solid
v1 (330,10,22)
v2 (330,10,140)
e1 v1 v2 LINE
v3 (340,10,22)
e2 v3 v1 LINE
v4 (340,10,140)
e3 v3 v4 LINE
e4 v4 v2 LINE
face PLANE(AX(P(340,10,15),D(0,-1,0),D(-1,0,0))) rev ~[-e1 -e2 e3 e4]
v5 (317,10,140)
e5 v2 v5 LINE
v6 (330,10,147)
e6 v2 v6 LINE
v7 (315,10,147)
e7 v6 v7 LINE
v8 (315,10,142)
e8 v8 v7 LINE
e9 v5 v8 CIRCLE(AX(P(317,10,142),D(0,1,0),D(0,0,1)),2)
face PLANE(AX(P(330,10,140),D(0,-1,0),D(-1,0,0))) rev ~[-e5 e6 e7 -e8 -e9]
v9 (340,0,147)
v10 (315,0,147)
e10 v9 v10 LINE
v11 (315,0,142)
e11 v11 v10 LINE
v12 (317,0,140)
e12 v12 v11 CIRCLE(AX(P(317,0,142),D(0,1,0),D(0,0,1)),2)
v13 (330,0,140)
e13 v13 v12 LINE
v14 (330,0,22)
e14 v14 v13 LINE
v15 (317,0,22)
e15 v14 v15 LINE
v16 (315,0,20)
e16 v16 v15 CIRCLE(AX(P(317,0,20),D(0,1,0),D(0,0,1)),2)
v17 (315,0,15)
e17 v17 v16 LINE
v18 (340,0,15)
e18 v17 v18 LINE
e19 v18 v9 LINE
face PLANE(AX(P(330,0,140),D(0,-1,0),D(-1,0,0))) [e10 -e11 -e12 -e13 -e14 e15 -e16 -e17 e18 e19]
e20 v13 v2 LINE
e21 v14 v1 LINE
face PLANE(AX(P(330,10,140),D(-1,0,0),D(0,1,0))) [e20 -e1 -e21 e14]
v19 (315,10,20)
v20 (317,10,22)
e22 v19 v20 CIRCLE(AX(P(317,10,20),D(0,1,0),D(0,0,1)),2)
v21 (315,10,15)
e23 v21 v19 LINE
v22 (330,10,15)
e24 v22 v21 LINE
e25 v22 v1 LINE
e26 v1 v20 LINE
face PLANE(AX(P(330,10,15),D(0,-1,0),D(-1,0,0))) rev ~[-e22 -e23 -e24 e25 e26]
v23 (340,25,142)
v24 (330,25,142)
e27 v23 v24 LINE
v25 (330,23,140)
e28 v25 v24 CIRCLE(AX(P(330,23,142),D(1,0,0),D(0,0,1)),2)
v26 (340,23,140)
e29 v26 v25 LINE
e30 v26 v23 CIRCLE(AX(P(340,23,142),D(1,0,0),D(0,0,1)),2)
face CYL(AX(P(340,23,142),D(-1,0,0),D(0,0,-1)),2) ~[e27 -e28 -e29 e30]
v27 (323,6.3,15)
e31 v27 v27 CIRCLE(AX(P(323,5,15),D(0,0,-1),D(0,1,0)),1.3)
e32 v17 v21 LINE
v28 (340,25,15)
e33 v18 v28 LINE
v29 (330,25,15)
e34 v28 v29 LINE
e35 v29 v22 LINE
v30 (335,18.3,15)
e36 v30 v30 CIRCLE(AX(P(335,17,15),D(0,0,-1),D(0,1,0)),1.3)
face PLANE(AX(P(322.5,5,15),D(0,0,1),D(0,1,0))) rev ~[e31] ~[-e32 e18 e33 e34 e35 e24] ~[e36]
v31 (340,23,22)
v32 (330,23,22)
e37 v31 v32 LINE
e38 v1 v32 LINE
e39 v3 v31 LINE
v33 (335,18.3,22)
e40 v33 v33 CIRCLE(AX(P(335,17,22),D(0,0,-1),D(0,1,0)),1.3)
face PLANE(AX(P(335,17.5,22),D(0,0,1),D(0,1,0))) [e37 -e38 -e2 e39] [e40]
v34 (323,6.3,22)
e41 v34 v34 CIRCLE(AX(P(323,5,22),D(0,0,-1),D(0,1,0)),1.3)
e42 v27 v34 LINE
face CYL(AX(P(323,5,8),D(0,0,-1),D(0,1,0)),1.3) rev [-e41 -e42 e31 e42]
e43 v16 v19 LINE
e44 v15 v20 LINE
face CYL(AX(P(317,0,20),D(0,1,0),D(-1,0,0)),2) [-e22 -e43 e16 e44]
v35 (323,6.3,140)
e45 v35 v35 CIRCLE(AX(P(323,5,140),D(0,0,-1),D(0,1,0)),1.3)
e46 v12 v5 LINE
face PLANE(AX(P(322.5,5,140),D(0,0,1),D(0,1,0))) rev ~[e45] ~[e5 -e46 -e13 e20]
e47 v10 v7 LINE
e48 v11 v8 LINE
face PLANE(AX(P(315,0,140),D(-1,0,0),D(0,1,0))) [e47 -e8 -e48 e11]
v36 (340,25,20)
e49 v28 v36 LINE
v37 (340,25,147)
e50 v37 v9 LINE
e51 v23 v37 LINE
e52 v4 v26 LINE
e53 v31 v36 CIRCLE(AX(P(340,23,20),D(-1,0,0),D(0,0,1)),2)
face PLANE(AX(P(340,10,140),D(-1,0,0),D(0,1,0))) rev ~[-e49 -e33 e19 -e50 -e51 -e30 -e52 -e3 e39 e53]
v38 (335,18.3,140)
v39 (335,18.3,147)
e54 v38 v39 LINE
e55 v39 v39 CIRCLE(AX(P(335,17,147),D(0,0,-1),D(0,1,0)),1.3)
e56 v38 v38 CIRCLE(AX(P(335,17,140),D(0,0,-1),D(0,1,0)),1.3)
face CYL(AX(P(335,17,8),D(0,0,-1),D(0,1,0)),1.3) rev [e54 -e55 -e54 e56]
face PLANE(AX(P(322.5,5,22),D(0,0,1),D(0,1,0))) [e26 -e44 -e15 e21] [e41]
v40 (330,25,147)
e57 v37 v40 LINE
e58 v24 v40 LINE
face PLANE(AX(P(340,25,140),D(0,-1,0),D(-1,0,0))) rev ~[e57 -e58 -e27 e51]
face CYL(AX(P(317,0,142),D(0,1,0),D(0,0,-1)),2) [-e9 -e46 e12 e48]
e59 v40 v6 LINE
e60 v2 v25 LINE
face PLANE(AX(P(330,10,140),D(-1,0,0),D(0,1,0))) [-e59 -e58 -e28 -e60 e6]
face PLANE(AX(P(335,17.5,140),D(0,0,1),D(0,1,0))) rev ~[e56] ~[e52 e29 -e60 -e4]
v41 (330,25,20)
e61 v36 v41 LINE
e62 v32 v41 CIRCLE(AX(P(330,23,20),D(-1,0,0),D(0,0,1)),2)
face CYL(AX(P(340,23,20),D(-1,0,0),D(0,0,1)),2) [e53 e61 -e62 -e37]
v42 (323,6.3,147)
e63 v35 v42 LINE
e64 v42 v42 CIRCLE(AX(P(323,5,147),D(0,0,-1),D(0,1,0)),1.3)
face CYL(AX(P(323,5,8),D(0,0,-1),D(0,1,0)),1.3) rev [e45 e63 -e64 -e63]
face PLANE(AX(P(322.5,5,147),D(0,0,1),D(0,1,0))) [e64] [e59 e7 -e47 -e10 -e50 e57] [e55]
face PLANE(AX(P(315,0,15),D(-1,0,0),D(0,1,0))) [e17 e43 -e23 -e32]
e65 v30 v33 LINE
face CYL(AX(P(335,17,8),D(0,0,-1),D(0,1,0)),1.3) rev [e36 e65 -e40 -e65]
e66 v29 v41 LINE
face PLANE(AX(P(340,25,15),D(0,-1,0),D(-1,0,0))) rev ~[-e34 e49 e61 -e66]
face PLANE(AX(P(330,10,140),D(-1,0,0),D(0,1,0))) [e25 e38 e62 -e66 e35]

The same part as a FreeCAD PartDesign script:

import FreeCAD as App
import Part
import Sketcher
Q = App.Units.Quantity


def edges_at(feature, points):
    """Names of the edges that pass closest to the given points."""
    edges = feature.Shape.Edges
    near = lambda p: min(range(len(edges)), key=lambda i: edges[i].distToShape(Part.Vertex(*p))[0])
    return sorted({f"Edge{near(p) + 1}" for p in points})

doc = App.newDocument("Part")
body = doc.addObject("PartDesign::Body", "Body")

sketch1 = body.newObject("Sketcher::SketchObject", "Sketch")
sketch1.AttachmentSupport = (doc.getObject("XY_Plane"), [""])
sketch1.MapMode = "FlatFace"
sketch1.AttachmentOffset = App.Placement(App.Vector(0, 0, 8), App.Rotation())
sketch1.addGeometry(Part.Circle(App.Vector(5, 17, 0), App.Vector(0, 0, 1), 1.3), False)
sketch1.addConstraint(Sketcher.Constraint("Diameter", 0, Q("2.6 mm")))
sketch1.addConstraint(Sketcher.Constraint("DistanceX", -1, 1, 0, 3, Q("5 mm")))
sketch1.addConstraint(Sketcher.Constraint("DistanceY", -1, 1, 0, 3, Q("17 mm")))
pad1 = body.newObject("PartDesign::Pad", "Pad")
pad1.Profile = sketch1
pad1.Length = 146
body2 = doc.addObject("PartDesign::Body", "Body001")

sketch2 = body2.newObject("Sketcher::SketchObject", "Sketch001")
sketch2.AttachmentSupport = (doc.getObject("XY_Plane001"), [""])
sketch2.MapMode = "FlatFace"
sketch2.AttachmentOffset = App.Placement(App.Vector(0, 0, 8), App.Rotation())
sketch2.addGeometry(Part.Circle(App.Vector(17, 5, 0), App.Vector(0, 0, 1), 1.3), False)
sketch2.addConstraint(Sketcher.Constraint("Diameter", 0, Q("2.6 mm")))
sketch2.addConstraint(Sketcher.Constraint("DistanceX", -1, 1, 0, 3, Q("17 mm")))
sketch2.addConstraint(Sketcher.Constraint("DistanceY", -1, 1, 0, 3, Q("5 mm")))
pad2 = body2.newObject("PartDesign::Pad", "Pad001")
pad2.Profile = sketch2
pad2.Length = 146
body3 = doc.addObject("PartDesign::Body", "Body002")

sketch3 = body3.newObject("Sketcher::SketchObject", "Sketch002")
sketch3.AttachmentSupport = (doc.getObject("XY_Plane002"), [""])
sketch3.MapMode = "FlatFace"
sketch3.AttachmentOffset = App.Placement(App.Vector(0, 0, 15), App.Rotation())
sketch3.addGeometry(Part.LineSegment(App.Vector(0, 10, 0), App.Vector(0, 0, 0)), False)
sketch3.addGeometry(Part.LineSegment(App.Vector(0, 0, 0), App.Vector(10, 0, 0)), False)
sketch3.addGeometry(Part.LineSegment(App.Vector(10, 0, 0), App.Vector(10, 10, 0)), False)
sketch3.addGeometry(Part.LineSegment(App.Vector(10, 10, 0), App.Vector(0, 10, 0)), False)
sketch3.addConstraint(Sketcher.Constraint("Coincident", 0, 2, 1, 1))
sketch3.addConstraint(Sketcher.Constraint("Coincident", 1, 2, 2, 1))
sketch3.addConstraint(Sketcher.Constraint("Coincident", 2, 2, 3, 1))
sketch3.addConstraint(Sketcher.Constraint("Coincident", 3, 2, 0, 1))
sketch3.addConstraint(Sketcher.Constraint("Vertical", 0))
sketch3.addConstraint(Sketcher.Constraint("Horizontal", 1))
sketch3.addConstraint(Sketcher.Constraint("Vertical", 2))
sketch3.addConstraint(Sketcher.Constraint("Horizontal", 3))
sketch3.addConstraint(Sketcher.Constraint("Coincident", 0, 2, -1, 1))
sketch3.addConstraint(Sketcher.Constraint("Equal", 3, 0))
sketch3.addConstraint(Sketcher.Constraint("DistanceX", 1, 1, 1, 2, Q("10 mm")))
pad3 = body3.newObject("PartDesign::Pad", "Pad002")
pad3.Profile = sketch3
pad3.Length = 132
body4 = doc.addObject("PartDesign::Body", "Body003")

sketch4 = body4.newObject("Sketcher::SketchObject", "Sketch003")
sketch4.AttachmentSupport = (doc.getObject("XY_Plane003"), [""])
sketch4.MapMode = "FlatFace"
sketch4.AttachmentOffset = App.Placement(App.Vector(0, 0, 140), App.Rotation())
sketch4.addGeometry(Part.LineSegment(App.Vector(10, 10, 0), App.Vector(10, 0, 0)), False)
sketch4.addGeometry(Part.LineSegment(App.Vector(10, 0, 0), App.Vector(25, 0, 0)), False)
sketch4.addGeometry(Part.LineSegment(App.Vector(25, 0, 0), App.Vector(25, 10, 0)), False)
sketch4.addGeometry(Part.LineSegment(App.Vector(25, 10, 0), App.Vector(10, 10, 0)), False)
sketch4.addConstraint(Sketcher.Constraint("Coincident", 0, 2, 1, 1))
sketch4.addConstraint(Sketcher.Constraint("Coincident", 1, 2, 2, 1))
sketch4.addConstraint(Sketcher.Constraint("Coincident", 2, 2, 3, 1))
sketch4.addConstraint(Sketcher.Constraint("Coincident", 3, 2, 0, 1))
sketch4.addConstraint(Sketcher.Constraint("Vertical", 0))
sketch4.addConstraint(Sketcher.Constraint("Horizontal", 1))
sketch4.addConstraint(Sketcher.Constraint("Vertical", 2))
sketch4.addConstraint(Sketcher.Constraint("Horizontal", 3))
sketch4.addConstraint(Sketcher.Constraint("PointOnObject", 0, 2, -1))
sketch4.addConstraint(Sketcher.Constraint("DistanceX", 1, 1, 1, 2, Q("15 mm")))
sketch4.addConstraint(Sketcher.Constraint("DistanceY", 0, 2, 0, 1, Q("10 mm")))
sketch4.addConstraint(Sketcher.Constraint("DistanceX", -1, 1, 0, 2, Q("10 mm")))
pad4 = body4.newObject("PartDesign::Pad", "Pad003")
pad4.Profile = sketch4
pad4.Length = 7
body5 = doc.addObject("PartDesign::Body", "Body004")

sketch5 = body5.newObject("Sketcher::SketchObject", "Sketch004")
sketch5.AttachmentSupport = (doc.getObject("XY_Plane004"), [""])
sketch5.MapMode = "FlatFace"
sketch5.AttachmentOffset = App.Placement(App.Vector(0, 0, 15), App.Rotation())
sketch5.addGeometry(Part.LineSegment(App.Vector(0, 25, 0), App.Vector(0, 10, 0)), False)
sketch5.addGeometry(Part.LineSegment(App.Vector(0, 10, 0), App.Vector(10, 10, 0)), False)
sketch5.addGeometry(Part.LineSegment(App.Vector(10, 10, 0), App.Vector(10, 25, 0)), False)
sketch5.addGeometry(Part.LineSegment(App.Vector(10, 25, 0), App.Vector(0, 25, 0)), False)
sketch5.addConstraint(Sketcher.Constraint("Coincident", 0, 2, 1, 1))
sketch5.addConstraint(Sketcher.Constraint("Coincident", 1, 2, 2, 1))
sketch5.addConstraint(Sketcher.Constraint("Coincident", 2, 2, 3, 1))
sketch5.addConstraint(Sketcher.Constraint("Coincident", 3, 2, 0, 1))
sketch5.addConstraint(Sketcher.Constraint("Vertical", 0))
sketch5.addConstraint(Sketcher.Constraint("Horizontal", 1))
sketch5.addConstraint(Sketcher.Constraint("Vertical", 2))
sketch5.addConstraint(Sketcher.Constraint("Horizontal", 3))
sketch5.addConstraint(Sketcher.Constraint("PointOnObject", 0, 2, -2))
sketch5.addConstraint(Sketcher.Constraint("DistanceX", 1, 1, 1, 2, Q("10 mm")))
sketch5.addConstraint(Sketcher.Constraint("DistanceY", 0, 2, 0, 1, Q("15 mm")))
sketch5.addConstraint(Sketcher.Constraint("DistanceY", -1, 1, 0, 2, Q("10 mm")))
pad5 = body5.newObject("PartDesign::Pad", "Pad004")
pad5.Profile = sketch5
pad5.Length = 7
body6 = doc.addObject("PartDesign::Body", "Body005")

sketch6 = body6.newObject("Sketcher::SketchObject", "Sketch005")
sketch6.AttachmentSupport = (doc.getObject("XY_Plane005"), [""])
sketch6.MapMode = "FlatFace"
sketch6.AttachmentOffset = App.Placement(App.Vector(0, 0, 140), App.Rotation())
sketch6.addGeometry(Part.LineSegment(App.Vector(0, 25, 0), App.Vector(0, 10, 0)), False)
sketch6.addGeometry(Part.LineSegment(App.Vector(0, 10, 0), App.Vector(10, 10, 0)), False)
sketch6.addGeometry(Part.LineSegment(App.Vector(10, 10, 0), App.Vector(10, 25, 0)), False)
sketch6.addGeometry(Part.LineSegment(App.Vector(10, 25, 0), App.Vector(0, 25, 0)), False)
sketch6.addConstraint(Sketcher.Constraint("Coincident", 0, 2, 1, 1))
sketch6.addConstraint(Sketcher.Constraint("Coincident", 1, 2, 2, 1))
sketch6.addConstraint(Sketcher.Constraint("Coincident", 2, 2, 3, 1))
sketch6.addConstraint(Sketcher.Constraint("Coincident", 3, 2, 0, 1))
sketch6.addConstraint(Sketcher.Constraint("Vertical", 0))
sketch6.addConstraint(Sketcher.Constraint("Horizontal", 1))
sketch6.addConstraint(Sketcher.Constraint("Vertical", 2))
sketch6.addConstraint(Sketcher.Constraint("Horizontal", 3))
sketch6.addConstraint(Sketcher.Constraint("PointOnObject", 0, 2, -2))
sketch6.addConstraint(Sketcher.Constraint("DistanceX", 1, 1, 1, 2, Q("10 mm")))
sketch6.addConstraint(Sketcher.Constraint("DistanceY", 0, 2, 0, 1, Q("15 mm")))
sketch6.addConstraint(Sketcher.Constraint("DistanceY", -1, 1, 0, 2, Q("10 mm")))
pad6 = body6.newObject("PartDesign::Pad", "Pad005")
pad6.Profile = sketch6
pad6.Length = 7
body7 = doc.addObject("PartDesign::Body", "Body006")

sketch7 = body7.newObject("Sketcher::SketchObject", "Sketch006")
sketch7.AttachmentSupport = (doc.getObject("XY_Plane006"), [""])
sketch7.MapMode = "FlatFace"
sketch7.AttachmentOffset = App.Placement(App.Vector(0, 0, 15), App.Rotation())
sketch7.addGeometry(Part.LineSegment(App.Vector(10, 10, 0), App.Vector(10, 0, 0)), False)
sketch7.addGeometry(Part.LineSegment(App.Vector(10, 0, 0), App.Vector(25, 0, 0)), False)
sketch7.addGeometry(Part.LineSegment(App.Vector(25, 0, 0), App.Vector(25, 10, 0)), False)
sketch7.addGeometry(Part.LineSegment(App.Vector(25, 10, 0), App.Vector(10, 10, 0)), False)
sketch7.addConstraint(Sketcher.Constraint("Coincident", 0, 2, 1, 1))
sketch7.addConstraint(Sketcher.Constraint("Coincident", 1, 2, 2, 1))
sketch7.addConstraint(Sketcher.Constraint("Coincident", 2, 2, 3, 1))
sketch7.addConstraint(Sketcher.Constraint("Coincident", 3, 2, 0, 1))
sketch7.addConstraint(Sketcher.Constraint("Vertical", 0))
sketch7.addConstraint(Sketcher.Constraint("Horizontal", 1))
sketch7.addConstraint(Sketcher.Constraint("Vertical", 2))
sketch7.addConstraint(Sketcher.Constraint("Horizontal", 3))
sketch7.addConstraint(Sketcher.Constraint("PointOnObject", 0, 2, -1))
sketch7.addConstraint(Sketcher.Constraint("DistanceX", 1, 1, 1, 2, Q("15 mm")))
sketch7.addConstraint(Sketcher.Constraint("DistanceY", 0, 2, 0, 1, Q("10 mm")))
sketch7.addConstraint(Sketcher.Constraint("DistanceX", -1, 1, 0, 2, Q("10 mm")))
pad7 = body7.newObject("PartDesign::Pad", "Pad006")
pad7.Profile = sketch7
pad7.Length = 7
doc.recompute()

boolean = body7.newObject("PartDesign::Boolean", "Boolean")
boolean.Type = "Fuse"
boolean.addObjects([body3])
doc.recompute()

boolean2 = body7.newObject("PartDesign::Boolean", "Boolean001")
boolean2.Type = "Fuse"
boolean2.addObjects([body4])
doc.recompute()

boolean3 = body7.newObject("PartDesign::Boolean", "Boolean002")
boolean3.Type = "Fuse"
boolean3.addObjects([body5])
doc.recompute()

boolean4 = body7.newObject("PartDesign::Boolean", "Boolean003")
boolean4.Type = "Fuse"
boolean4.addObjects([body6])
doc.recompute()

fillet = body7.newObject("PartDesign::Fillet", "Fillet")
fillet.Base = (boolean4, edges_at(boolean4, [
    (25, 5, 22),
    (25, 5, 140),
    (5, 25, 22),
    (5, 25, 140),
]))
fillet.Radius = 2
doc.recompute()

boolean5 = body7.newObject("PartDesign::Boolean", "Boolean004")
boolean5.Type = "Cut"
boolean5.addObjects([body2])
doc.recompute()

boolean6 = body7.newObject("PartDesign::Boolean", "Boolean005")
boolean6.Type = "Cut"
boolean6.addObjects([body])
body8 = doc.addObject("PartDesign::Body", "Body007")
doc.recompute()

body7.Placement = App.Placement(App.Vector(340, 0, 0), App.Rotation(App.Vector(0, 0, 1), 90))
boolean7 = body8.newObject("PartDesign::Boolean", "Boolean006")
boolean7.Type = "Fuse"
boolean7.addObjects([body7])

doc.recompute()
